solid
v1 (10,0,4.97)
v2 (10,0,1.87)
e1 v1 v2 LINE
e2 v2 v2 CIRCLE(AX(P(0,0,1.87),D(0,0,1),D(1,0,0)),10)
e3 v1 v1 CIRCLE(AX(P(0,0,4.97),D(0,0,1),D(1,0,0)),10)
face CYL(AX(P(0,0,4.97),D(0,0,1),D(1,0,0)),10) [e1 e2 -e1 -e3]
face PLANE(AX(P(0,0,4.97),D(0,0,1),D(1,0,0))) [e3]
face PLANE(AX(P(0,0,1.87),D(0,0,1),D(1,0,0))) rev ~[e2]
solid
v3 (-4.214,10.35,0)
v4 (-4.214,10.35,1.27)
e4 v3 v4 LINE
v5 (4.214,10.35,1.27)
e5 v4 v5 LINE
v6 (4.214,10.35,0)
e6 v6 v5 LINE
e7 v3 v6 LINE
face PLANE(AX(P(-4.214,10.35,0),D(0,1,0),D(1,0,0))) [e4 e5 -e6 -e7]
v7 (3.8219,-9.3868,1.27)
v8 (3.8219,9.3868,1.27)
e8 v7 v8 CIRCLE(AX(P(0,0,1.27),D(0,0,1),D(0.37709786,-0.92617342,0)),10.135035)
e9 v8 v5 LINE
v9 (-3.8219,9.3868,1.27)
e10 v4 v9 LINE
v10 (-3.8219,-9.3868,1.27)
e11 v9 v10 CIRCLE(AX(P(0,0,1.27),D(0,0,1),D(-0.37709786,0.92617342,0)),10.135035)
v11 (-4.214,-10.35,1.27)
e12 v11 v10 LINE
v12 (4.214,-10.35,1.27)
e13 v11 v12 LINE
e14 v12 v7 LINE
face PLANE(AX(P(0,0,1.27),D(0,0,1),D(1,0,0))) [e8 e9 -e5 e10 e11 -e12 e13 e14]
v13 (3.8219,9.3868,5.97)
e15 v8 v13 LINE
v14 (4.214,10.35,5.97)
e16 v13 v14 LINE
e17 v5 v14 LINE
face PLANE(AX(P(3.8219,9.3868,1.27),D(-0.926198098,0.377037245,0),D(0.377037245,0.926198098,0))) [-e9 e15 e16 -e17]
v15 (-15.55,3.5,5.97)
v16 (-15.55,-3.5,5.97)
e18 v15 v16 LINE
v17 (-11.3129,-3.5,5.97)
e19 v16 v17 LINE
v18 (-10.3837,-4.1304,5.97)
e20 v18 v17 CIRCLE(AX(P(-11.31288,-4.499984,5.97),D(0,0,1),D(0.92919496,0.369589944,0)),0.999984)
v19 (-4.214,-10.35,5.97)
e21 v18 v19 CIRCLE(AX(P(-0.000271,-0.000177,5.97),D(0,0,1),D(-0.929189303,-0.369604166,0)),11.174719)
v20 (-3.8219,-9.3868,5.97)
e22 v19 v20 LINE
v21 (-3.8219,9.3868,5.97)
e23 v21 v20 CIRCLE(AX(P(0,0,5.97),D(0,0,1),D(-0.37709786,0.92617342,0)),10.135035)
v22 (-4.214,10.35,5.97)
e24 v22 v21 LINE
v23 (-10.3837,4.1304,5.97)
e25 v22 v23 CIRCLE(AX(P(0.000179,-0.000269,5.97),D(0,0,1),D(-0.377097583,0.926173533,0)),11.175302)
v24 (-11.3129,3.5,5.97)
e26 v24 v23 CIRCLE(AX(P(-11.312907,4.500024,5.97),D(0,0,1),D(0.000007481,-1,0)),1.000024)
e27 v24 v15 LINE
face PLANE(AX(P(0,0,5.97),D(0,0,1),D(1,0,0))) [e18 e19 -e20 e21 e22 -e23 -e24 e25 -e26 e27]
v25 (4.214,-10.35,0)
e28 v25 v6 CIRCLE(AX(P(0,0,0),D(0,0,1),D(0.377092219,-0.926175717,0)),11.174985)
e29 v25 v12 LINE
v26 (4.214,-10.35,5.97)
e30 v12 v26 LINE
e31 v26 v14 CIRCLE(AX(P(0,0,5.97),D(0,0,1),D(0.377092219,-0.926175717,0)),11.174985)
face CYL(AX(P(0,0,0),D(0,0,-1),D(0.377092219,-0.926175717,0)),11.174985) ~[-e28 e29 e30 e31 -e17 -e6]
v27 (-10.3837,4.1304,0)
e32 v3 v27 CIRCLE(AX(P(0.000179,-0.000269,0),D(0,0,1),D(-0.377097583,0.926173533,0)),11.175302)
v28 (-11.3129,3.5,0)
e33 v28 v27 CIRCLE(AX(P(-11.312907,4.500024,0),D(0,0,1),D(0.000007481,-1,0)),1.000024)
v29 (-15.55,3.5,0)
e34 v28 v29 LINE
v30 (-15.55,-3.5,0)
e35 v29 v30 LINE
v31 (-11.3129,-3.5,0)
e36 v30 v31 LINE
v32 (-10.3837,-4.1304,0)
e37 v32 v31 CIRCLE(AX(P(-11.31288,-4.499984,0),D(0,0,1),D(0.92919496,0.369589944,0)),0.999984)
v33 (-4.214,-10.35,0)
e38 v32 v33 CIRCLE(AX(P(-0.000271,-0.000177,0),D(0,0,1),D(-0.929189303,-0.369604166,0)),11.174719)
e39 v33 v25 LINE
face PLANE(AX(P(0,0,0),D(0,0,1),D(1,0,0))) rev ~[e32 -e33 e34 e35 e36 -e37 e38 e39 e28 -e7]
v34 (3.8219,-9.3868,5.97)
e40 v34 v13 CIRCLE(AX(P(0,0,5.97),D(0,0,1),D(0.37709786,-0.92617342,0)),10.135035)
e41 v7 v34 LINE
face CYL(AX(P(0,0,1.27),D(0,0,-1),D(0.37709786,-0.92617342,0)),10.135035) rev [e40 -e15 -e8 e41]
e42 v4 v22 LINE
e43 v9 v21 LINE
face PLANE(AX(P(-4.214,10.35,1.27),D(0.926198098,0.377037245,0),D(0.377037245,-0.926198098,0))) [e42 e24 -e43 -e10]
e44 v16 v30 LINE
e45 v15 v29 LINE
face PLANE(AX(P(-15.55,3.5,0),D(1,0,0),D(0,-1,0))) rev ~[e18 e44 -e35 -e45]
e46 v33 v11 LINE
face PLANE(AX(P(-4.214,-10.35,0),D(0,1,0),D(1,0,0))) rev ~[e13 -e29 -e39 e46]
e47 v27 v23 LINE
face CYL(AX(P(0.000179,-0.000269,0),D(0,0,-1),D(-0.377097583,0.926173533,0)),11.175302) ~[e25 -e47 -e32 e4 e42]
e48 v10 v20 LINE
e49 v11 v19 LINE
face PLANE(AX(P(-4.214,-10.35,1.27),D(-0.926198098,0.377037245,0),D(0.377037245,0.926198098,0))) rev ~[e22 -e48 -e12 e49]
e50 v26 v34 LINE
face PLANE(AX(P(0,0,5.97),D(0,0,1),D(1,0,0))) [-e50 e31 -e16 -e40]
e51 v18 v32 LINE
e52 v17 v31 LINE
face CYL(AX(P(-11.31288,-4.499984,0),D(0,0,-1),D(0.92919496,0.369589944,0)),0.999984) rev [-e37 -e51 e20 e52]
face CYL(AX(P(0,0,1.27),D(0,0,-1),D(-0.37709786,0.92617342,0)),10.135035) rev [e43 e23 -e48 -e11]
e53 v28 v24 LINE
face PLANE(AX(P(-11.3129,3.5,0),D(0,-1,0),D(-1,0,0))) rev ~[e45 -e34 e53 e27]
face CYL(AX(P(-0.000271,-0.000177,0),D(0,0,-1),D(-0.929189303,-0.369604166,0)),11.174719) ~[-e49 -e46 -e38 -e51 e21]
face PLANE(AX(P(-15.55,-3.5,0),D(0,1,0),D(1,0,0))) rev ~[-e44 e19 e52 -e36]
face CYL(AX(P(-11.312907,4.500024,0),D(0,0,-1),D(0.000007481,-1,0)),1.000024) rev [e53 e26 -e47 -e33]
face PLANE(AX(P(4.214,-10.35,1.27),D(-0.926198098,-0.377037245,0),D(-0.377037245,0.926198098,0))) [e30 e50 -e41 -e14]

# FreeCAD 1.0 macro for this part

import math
import FreeCAD as App
import Part
import Sketcher
Q = App.Units.Quantity

doc = App.newDocument("Part")
body = doc.addObject("PartDesign::Body", "Body")
body.AllowCompound = True

sketch1 = body.newObject("Sketcher::SketchObject", "Sketch")
sketch1.AttachmentSupport = (doc.getObject("XY_Plane"), [""])
sketch1.MapMode = "FlatFace"
sketch1.addGeometry(Part.LineSegment(App.Vector(4.2, 10.3, 0), App.Vector(-4.2, 10.3, 0)), False)
sketch1.addGeometry(Part.ArcOfCircle(Part.Circle(App.Vector(0, 0, 0), App.Vector(0, 0, 1), 11.2), math.radians(112), math.radians(158)), False)
sketch1.addGeometry(Part.ArcOfCircle(Part.Circle(App.Vector(-11.3, 4.5, 0), App.Vector(0, 0, 1), 1), math.radians(-90), math.radians(-22)), False)
sketch1.addGeometry(Part.LineSegment(App.Vector(-11.3, 3.5, 0), App.Vector(-15.6, 3.5, 0)), False)
sketch1.addGeometry(Part.LineSegment(App.Vector(-15.6, 3.5, 0), App.Vector(-15.6, -3.5, 0)), False)
sketch1.addGeometry(Part.LineSegment(App.Vector(-15.6, -3.5, 0), App.Vector(-11.3, -3.5, 0)), False)
sketch1.addGeometry(Part.ArcOfCircle(Part.Circle(App.Vector(-11.3, -4.5, 0), App.Vector(0, 0, 1), 1), math.radians(22), math.radians(90)), False)
sketch1.addGeometry(Part.ArcOfCircle(Part.Circle(App.Vector(0, 0, 0), App.Vector(0, 0, 1), 11.2), math.radians(-158), math.radians(-112)), False)
sketch1.addGeometry(Part.LineSegment(App.Vector(-4.2, -10.3, 0), App.Vector(4.2, -10.3, 0)), False)
sketch1.addGeometry(Part.ArcOfCircle(Part.Circle(App.Vector(0, 0, 0), App.Vector(0, 0, 1), 11.2), math.radians(-68), math.radians(68)), False)
sketch1.addConstraint(Sketcher.Constraint("Coincident", 0, 2, 1, 1))
sketch1.addConstraint(Sketcher.Constraint("Tangent", 1, 2, 2, 2))
sketch1.addConstraint(Sketcher.Constraint("Tangent", 2, 1, 3, 1))
sketch1.addConstraint(Sketcher.Constraint("Coincident", 3, 2, 4, 1))
sketch1.addConstraint(Sketcher.Constraint("Coincident", 4, 2, 5, 1))
sketch1.addConstraint(Sketcher.Constraint("Tangent", 5, 2, 6, 2))
sketch1.addConstraint(Sketcher.Constraint("Tangent", 6, 1, 7, 1))
sketch1.addConstraint(Sketcher.Constraint("Coincident", 7, 2, 8, 1))
sketch1.addConstraint(Sketcher.Constraint("Coincident", 8, 2, 9, 1))
sketch1.addConstraint(Sketcher.Constraint("Coincident", 9, 2, 0, 1))
sketch1.addConstraint(Sketcher.Constraint("Horizontal", 0))
sketch1.addConstraint(Sketcher.Constraint("Horizontal", 3))
sketch1.addConstraint(Sketcher.Constraint("Vertical", 4))
sketch1.addConstraint(Sketcher.Constraint("Horizontal", 5))
sketch1.addConstraint(Sketcher.Constraint("Horizontal", 8))
sketch1.addConstraint(Sketcher.Constraint("Coincident", 1, 3, -1, 1))
sketch1.addConstraint(Sketcher.Constraint("Coincident", 7, 3, -1, 1))
sketch1.addConstraint(Sketcher.Constraint("Coincident", 9, 3, -1, 1))
sketch1.addConstraint(Sketcher.Constraint("Equal", 2, 6))
sketch1.addConstraint(Sketcher.Constraint("Equal", 1, 7))
sketch1.addConstraint(Sketcher.Constraint("Equal", 7, 9))
sketch1.addConstraint(Sketcher.Constraint("Vertical", 2, 3, 6, 3))
sketch1.addConstraint(Sketcher.Constraint("Vertical", 0, 2, 7, 2))
sketch1.addConstraint(Sketcher.Constraint("Radius", 2, Q("1 mm")))
sketch1.addConstraint(Sketcher.Constraint("DistanceY", 4, 2, 4, 1, Q("7 mm")))
sketch1.addConstraint(Sketcher.Constraint("Radius", 1, Q("11.175 mm")))
sketch1.addConstraint(Sketcher.Constraint("DistanceX", 3, 2, -1, 1, Q("15.55 mm")))
sketch1.addConstraint(Sketcher.Constraint("DistanceX", 0, 2, 0, 1, Q("8.428 mm")))
pad1 = body.newObject("PartDesign::Pad", "Pad")
pad1.Profile = sketch1
pad1.Length = 1.27

sketch2 = body.newObject("Sketcher::SketchObject", "Sketch001")
sketch2.AttachmentSupport = (doc.getObject("XY_Plane"), [""])
sketch2.MapMode = "FlatFace"
sketch2.AttachmentOffset = App.Placement(App.Vector(0, 0, 1.27), App.Rotation())
sketch2.addGeometry(Part.ArcOfCircle(Part.Circle(App.Vector(0, 0, 0), App.Vector(0, 0, 1), 11.2), math.radians(-68), math.radians(68)), False)
sketch2.addGeometry(Part.LineSegment(App.Vector(4.2, 10.3, 0), App.Vector(3.8, 9.4, 0)), False)
sketch2.addGeometry(Part.ArcOfCircle(Part.Circle(App.Vector(0, 0, 0), App.Vector(0, 0, 1), 10.1), math.radians(-68), math.radians(68)), False)
sketch2.addGeometry(Part.LineSegment(App.Vector(3.8, -9.4, 0), App.Vector(4.2, -10.3, 0)), False)
sketch2.addGeometry(Part.LineSegment(App.Vector(-3.8, 9.4, 0), App.Vector(-4.2, 10.3, 0)), False)
sketch2.addGeometry(Part.ArcOfCircle(Part.Circle(App.Vector(0, 0, 0), App.Vector(0, 0, 1), 11.2), math.radians(112), math.radians(158)), False)
sketch2.addGeometry(Part.ArcOfCircle(Part.Circle(App.Vector(-11.3, 4.5, 0), App.Vector(0, 0, 1), 1), math.radians(-90), math.radians(-22)), False)
sketch2.addGeometry(Part.LineSegment(App.Vector(-11.3, 3.5, 0), App.Vector(-15.6, 3.5, 0)), False)
sketch2.addGeometry(Part.LineSegment(App.Vector(-15.6, 3.5, 0), App.Vector(-15.6, -3.5, 0)), False)
sketch2.addGeometry(Part.LineSegment(App.Vector(-15.6, -3.5, 0), App.Vector(-11.3, -3.5, 0)), False)
sketch2.addGeometry(Part.ArcOfCircle(Part.Circle(App.Vector(-11.3, -4.5, 0), App.Vector(0, 0, 1), 1), math.radians(22), math.radians(90)), False)
sketch2.addGeometry(Part.ArcOfCircle(Part.Circle(App.Vector(0, 0, 0), App.Vector(0, 0, 1), 11.2), math.radians(-158), math.radians(-112)), False)
sketch2.addGeometry(Part.LineSegment(App.Vector(-4.2, -10.3, 0), App.Vector(-3.8, -9.4, 0)), False)
sketch2.addGeometry(Part.ArcOfCircle(Part.Circle(App.Vector(0, 0, 0), App.Vector(0, 0, 1), 10.1), math.radians(112), math.radians(248)), False)
sketch2.addConstraint(Sketcher.Constraint("Coincident", 0, 2, 1, 1))
sketch2.addConstraint(Sketcher.Constraint("Coincident", 1, 2, 2, 2))
sketch2.addConstraint(Sketcher.Constraint("Coincident", 2, 1, 3, 1))
sketch2.addConstraint(Sketcher.Constraint("Coincident", 3, 2, 0, 1))
sketch2.addConstraint(Sketcher.Constraint("Coincident", 4, 2, 5, 1))
sketch2.addConstraint(Sketcher.Constraint("Tangent", 5, 2, 6, 2))
sketch2.addConstraint(Sketcher.Constraint("Tangent", 6, 1, 7, 1))
sketch2.addConstraint(Sketcher.Constraint("Coincident", 7, 2, 8, 1))
sketch2.addConstraint(Sketcher.Constraint("Coincident", 8, 2, 9, 1))
sketch2.addConstraint(Sketcher.Constraint("Tangent", 9, 2, 10, 2))
sketch2.addConstraint(Sketcher.Constraint("Tangent", 10, 1, 11, 1))
sketch2.addConstraint(Sketcher.Constraint("Coincident", 11, 2, 12, 1))
sketch2.addConstraint(Sketcher.Constraint("Coincident", 12, 2, 13, 2))
sketch2.addConstraint(Sketcher.Constraint("Coincident", 13, 1, 4, 1))
sketch2.addConstraint(Sketcher.Constraint("Horizontal", 7))
sketch2.addConstraint(Sketcher.Constraint("Vertical", 8))
sketch2.addConstraint(Sketcher.Constraint("Horizontal", 9))
sketch2.addConstraint(Sketcher.Constraint("Coincident", 0, 3, -1, 1))
sketch2.addConstraint(Sketcher.Constraint("Coincident", 2, 3, -1, 1))
sketch2.addConstraint(Sketcher.Constraint("Coincident", 5, 3, -1, 1))
sketch2.addConstraint(Sketcher.Constraint("Coincident", 11, 3, -1, 1))
sketch2.addConstraint(Sketcher.Constraint("Coincident", 13, 3, -1, 1))
sketch2.addConstraint(Sketcher.Constraint("Equal", 0, 5))
sketch2.addConstraint(Sketcher.Constraint("Equal", 6, 10))
sketch2.addConstraint(Sketcher.Constraint("Equal", 5, 11))
sketch2.addConstraint(Sketcher.Constraint("Equal", 2, 13))
sketch2.addConstraint(Sketcher.Constraint("Parallel", 3, 4))
sketch2.addConstraint(Sketcher.Constraint("Parallel", 1, 12))
sketch2.addConstraint(Sketcher.Constraint("Horizontal", 0, 2, 4, 2))
sketch2.addConstraint(Sketcher.Constraint("Horizontal", 3, 2, 11, 2))
sketch2.addConstraint(Sketcher.Constraint("Horizontal", 2, 1, 12, 2))
sketch2.addConstraint(Sketcher.Constraint("Vertical", 6, 3, 10, 3))
sketch2.addConstraint(Sketcher.Constraint("Vertical", 1, 2, 2, 1))
sketch2.addConstraint(Sketcher.Constraint("Radius", 2, Q("10.135 mm")))
sketch2.addConstraint(Sketcher.Constraint("Radius", 6, Q("1 mm")))
sketch2.addConstraint(Sketcher.Constraint("DistanceY", 8, 2, 8, 1, Q("7 mm")))
sketch2.addConstraint(Sketcher.Constraint("Radius", 0, Q("11.175 mm")))
sketch2.addConstraint(Sketcher.Constraint("Angle", 1, Q("-112.1503 deg")))
sketch2.addConstraint(Sketcher.Constraint("DistanceX", 7, 2, 7, 1, Q("4.237 mm")))
sketch2.addConstraint(Sketcher.Constraint("DistanceY", -1, 1, 0, 2, Q("10.35 mm")))
pad2 = body.newObject("PartDesign::Pad", "Pad001")
pad2.Profile = sketch2
pad2.Length = 4.7

sketch3 = body.newObject("Sketcher::SketchObject", "Sketch002")
sketch3.AttachmentSupport = (doc.getObject("XY_Plane"), [""])
sketch3.MapMode = "FlatFace"
sketch3.AttachmentOffset = App.Placement(App.Vector(0, 0, 4.97), App.Rotation())
sketch3.addGeometry(Part.Circle(App.Vector(0, 0, 0), App.Vector(0, 0, 1), 10), False)
sketch3.addConstraint(Sketcher.Constraint("Coincident", 0, 3, -1, 1))
sketch3.addConstraint(Sketcher.Constraint("Diameter", 0, Q("20 mm")))
pad3 = body.newObject("PartDesign::Pad", "Pad002")
pad3.Profile = sketch3
pad3.Length = 3.1
pad3.Reversed = True

doc.recompute()
